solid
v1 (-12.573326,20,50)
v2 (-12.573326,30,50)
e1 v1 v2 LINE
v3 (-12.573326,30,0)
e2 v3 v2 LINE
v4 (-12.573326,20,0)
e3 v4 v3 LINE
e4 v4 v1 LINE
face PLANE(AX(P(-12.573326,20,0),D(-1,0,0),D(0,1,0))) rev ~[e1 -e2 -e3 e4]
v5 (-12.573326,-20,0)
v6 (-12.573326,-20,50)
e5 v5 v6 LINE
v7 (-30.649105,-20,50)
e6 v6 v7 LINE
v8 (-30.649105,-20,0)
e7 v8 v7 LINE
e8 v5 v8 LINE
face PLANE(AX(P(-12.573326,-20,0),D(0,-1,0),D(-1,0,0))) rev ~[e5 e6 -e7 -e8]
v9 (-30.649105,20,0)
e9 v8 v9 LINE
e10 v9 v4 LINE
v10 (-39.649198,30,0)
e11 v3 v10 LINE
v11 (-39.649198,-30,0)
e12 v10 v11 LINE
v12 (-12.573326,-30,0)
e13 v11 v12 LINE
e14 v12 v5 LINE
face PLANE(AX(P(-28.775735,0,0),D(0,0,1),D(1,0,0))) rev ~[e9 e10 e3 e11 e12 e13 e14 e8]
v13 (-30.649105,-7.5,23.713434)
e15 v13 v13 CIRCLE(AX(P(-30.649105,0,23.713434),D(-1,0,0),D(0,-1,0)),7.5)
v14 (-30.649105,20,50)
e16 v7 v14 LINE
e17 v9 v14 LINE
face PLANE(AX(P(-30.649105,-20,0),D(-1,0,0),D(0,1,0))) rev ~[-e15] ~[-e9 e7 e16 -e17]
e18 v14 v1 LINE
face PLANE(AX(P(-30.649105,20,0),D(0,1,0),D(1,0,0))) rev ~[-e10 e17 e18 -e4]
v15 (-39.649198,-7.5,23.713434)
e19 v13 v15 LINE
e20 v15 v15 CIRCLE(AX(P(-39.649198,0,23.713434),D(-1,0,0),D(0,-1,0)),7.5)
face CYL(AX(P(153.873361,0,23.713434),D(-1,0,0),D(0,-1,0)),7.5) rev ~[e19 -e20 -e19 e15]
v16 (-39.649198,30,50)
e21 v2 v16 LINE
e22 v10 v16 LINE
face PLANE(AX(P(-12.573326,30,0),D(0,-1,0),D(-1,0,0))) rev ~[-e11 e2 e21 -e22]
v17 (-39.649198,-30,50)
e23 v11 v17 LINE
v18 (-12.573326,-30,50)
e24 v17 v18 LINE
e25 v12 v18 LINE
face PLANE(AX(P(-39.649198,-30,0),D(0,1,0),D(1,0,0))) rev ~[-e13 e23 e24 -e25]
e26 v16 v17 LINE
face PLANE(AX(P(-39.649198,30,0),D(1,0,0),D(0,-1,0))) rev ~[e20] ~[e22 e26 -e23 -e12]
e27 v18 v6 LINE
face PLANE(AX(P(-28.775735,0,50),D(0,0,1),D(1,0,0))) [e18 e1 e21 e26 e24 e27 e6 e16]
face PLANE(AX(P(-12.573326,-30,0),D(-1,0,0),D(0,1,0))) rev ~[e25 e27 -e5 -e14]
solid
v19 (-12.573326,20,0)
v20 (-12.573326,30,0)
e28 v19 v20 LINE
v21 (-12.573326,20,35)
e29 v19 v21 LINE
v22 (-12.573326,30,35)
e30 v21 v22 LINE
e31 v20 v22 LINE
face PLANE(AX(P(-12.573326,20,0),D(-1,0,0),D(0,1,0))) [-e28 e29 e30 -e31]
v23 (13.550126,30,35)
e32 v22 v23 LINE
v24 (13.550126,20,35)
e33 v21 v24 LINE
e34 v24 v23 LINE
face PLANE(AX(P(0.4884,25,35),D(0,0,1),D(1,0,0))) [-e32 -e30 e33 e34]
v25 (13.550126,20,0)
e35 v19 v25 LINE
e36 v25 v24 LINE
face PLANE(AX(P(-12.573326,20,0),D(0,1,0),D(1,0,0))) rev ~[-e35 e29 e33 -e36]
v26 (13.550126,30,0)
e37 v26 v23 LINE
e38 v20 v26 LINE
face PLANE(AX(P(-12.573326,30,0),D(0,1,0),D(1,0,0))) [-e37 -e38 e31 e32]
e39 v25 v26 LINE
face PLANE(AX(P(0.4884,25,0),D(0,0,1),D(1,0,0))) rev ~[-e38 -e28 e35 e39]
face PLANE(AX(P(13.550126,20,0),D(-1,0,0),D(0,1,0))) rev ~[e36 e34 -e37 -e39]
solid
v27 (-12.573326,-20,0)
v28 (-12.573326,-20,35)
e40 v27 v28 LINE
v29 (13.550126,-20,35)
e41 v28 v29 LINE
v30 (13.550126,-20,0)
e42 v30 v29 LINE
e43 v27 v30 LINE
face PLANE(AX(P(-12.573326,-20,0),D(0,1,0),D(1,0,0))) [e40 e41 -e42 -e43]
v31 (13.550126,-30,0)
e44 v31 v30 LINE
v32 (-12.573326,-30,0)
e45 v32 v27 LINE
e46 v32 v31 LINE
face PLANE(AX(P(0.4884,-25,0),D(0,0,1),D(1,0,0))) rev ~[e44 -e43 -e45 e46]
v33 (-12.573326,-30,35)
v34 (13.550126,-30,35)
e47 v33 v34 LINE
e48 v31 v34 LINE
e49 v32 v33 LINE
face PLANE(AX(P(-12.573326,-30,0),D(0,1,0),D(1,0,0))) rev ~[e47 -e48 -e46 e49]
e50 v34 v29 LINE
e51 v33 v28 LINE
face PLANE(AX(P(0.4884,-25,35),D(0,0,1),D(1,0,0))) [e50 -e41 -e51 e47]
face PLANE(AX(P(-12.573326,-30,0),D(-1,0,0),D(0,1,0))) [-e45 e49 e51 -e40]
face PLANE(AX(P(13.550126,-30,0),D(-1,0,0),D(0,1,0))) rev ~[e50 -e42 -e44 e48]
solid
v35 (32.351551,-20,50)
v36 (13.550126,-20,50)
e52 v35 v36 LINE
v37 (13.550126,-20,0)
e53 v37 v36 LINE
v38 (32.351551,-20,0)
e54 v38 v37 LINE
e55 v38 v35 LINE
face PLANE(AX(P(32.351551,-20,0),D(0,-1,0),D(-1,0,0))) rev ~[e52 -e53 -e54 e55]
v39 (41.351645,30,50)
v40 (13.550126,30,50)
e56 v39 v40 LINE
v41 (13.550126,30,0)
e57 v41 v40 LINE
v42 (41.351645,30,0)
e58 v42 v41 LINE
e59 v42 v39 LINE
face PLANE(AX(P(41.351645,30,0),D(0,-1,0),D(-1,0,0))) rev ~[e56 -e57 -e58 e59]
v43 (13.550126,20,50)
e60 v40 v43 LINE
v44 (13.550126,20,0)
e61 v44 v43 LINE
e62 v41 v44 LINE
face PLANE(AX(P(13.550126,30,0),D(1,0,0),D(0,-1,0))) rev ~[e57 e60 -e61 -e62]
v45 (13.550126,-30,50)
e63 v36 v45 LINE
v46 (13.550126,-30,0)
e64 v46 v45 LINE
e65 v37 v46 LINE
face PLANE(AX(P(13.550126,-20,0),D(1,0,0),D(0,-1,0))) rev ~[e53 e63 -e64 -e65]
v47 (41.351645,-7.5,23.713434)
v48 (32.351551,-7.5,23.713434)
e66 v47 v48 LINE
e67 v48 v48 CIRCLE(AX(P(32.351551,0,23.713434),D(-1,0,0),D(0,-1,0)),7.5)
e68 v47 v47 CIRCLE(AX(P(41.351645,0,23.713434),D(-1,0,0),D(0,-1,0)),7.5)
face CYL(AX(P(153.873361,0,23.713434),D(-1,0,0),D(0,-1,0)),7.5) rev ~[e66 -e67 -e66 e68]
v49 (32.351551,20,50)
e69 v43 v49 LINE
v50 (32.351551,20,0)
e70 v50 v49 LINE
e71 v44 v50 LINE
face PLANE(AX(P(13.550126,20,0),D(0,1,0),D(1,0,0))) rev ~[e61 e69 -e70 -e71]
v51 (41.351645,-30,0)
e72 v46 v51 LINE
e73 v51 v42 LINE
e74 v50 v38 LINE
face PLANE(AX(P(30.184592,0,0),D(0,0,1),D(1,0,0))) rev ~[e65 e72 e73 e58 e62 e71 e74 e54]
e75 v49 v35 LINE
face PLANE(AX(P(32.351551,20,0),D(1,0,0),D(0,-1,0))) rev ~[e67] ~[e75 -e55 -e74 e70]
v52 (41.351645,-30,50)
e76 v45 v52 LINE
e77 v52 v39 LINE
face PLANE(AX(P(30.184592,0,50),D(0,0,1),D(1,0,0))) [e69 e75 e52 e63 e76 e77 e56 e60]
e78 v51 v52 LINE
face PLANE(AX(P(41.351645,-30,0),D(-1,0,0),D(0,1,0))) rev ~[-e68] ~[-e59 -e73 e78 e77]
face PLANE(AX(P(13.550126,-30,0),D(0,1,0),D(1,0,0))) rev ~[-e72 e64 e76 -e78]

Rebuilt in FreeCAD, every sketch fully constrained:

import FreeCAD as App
import Part
import Sketcher
from FreeCAD import Vector

doc = App.newDocument("Part")
params = doc.addObject("Spreadsheet::Sheet", "Params")
for row, (alias, value) in enumerate([
    ("sketch1_height", "60 mm"),
    ("sketch1_height2", "10 mm"),
    ("pad1_length", "50 mm"),
    ("sketch2_diameter", "15 mm"),
    ("hole_diameter", "15 mm"),
    ("sketch3_height", "10 mm"),
    ("pad2_length", "35 mm"),
], start=1):
    params.set(f"A{row}", alias)
    params.set(f"B{row}", "=" + value)
    params.setAlias(f"B{row}", alias)

body = doc.addObject("PartDesign::Body", "Body")
body.AllowCompound = True

sketch1 = body.newObject("Sketcher::SketchObject", "Sketch")
sketch1.AttachmentSupport = (doc.getObject("XY_Plane"), [""])
sketch1.MapMode = "FlatFace"
sketch1.addGeometry([
    Part.LineSegment(Vector(-12.573326, 30, 0), Vector(-39.649198, 30, 0)),
    Part.LineSegment(Vector(-39.649198, 30, 0), Vector(-39.649198, -30, 0)),
    Part.LineSegment(Vector(-39.649198, -30, 0), Vector(-12.573326, -30, 0)),
    Part.LineSegment(Vector(-12.573326, -30, 0), Vector(-12.573326, -20, 0)),
    Part.LineSegment(Vector(-12.573326, -20, 0), Vector(-30.649105, -20, 0)),
    Part.LineSegment(Vector(-30.649105, -20, 0), Vector(-30.649105, 20, 0)),
    Part.LineSegment(Vector(-30.649105, 20, 0), Vector(-12.573326, 20, 0)),
    Part.LineSegment(Vector(-12.573326, 20, 0), Vector(-12.573326, 30, 0)),
    Part.LineSegment(Vector(41.351645, 30, 0), Vector(13.550126, 30, 0)),
    Part.LineSegment(Vector(13.550126, 30, 0), Vector(13.550126, 20, 0)),
    Part.LineSegment(Vector(13.550126, 20, 0), Vector(32.351551, 20, 0)),
    Part.LineSegment(Vector(32.351551, 20, 0), Vector(32.351551, -20, 0)),
    Part.LineSegment(Vector(32.351551, -20, 0), Vector(13.550126, -20, 0)),
    Part.LineSegment(Vector(13.550126, -20, 0), Vector(13.550126, -30, 0)),
    Part.LineSegment(Vector(13.550126, -30, 0), Vector(41.351645, -30, 0)),
    Part.LineSegment(Vector(41.351645, -30, 0), Vector(41.351645, 30, 0)),
], False)
sketch1.addConstraint([
    Sketcher.Constraint("Coincident", 0, 2, 1, 1),
    Sketcher.Constraint("Coincident", 1, 2, 2, 1),
    Sketcher.Constraint("Coincident", 2, 2, 3, 1),
    Sketcher.Constraint("Coincident", 3, 2, 4, 1),
    Sketcher.Constraint("Coincident", 4, 2, 5, 1),
    Sketcher.Constraint("Coincident", 5, 2, 6, 1),
    Sketcher.Constraint("Coincident", 6, 2, 7, 1),
    Sketcher.Constraint("Coincident", 7, 2, 0, 1),
    Sketcher.Constraint("Coincident", 8, 2, 9, 1),
    Sketcher.Constraint("Coincident", 9, 2, 10, 1),
    Sketcher.Constraint("Coincident", 10, 2, 11, 1),
    Sketcher.Constraint("Coincident", 11, 2, 12, 1),
    Sketcher.Constraint("Coincident", 12, 2, 13, 1),
    Sketcher.Constraint("Coincident", 13, 2, 14, 1),
    Sketcher.Constraint("Coincident", 14, 2, 15, 1),
    Sketcher.Constraint("Coincident", 15, 2, 8, 1),
    Sketcher.Constraint("Horizontal", 0),
    Sketcher.Constraint("Vertical", 1),
    Sketcher.Constraint("Horizontal", 2),
    Sketcher.Constraint("Vertical", 3),
    Sketcher.Constraint("Horizontal", 4),
    Sketcher.Constraint("Vertical", 5),
    Sketcher.Constraint("Horizontal", 6),
    Sketcher.Constraint("Vertical", 7),
    Sketcher.Constraint("Horizontal", 8),
    Sketcher.Constraint("Vertical", 9),
    Sketcher.Constraint("Horizontal", 10),
    Sketcher.Constraint("Vertical", 11),
    Sketcher.Constraint("Horizontal", 12),
    Sketcher.Constraint("Vertical", 13),
    Sketcher.Constraint("Horizontal", 14),
    Sketcher.Constraint("Vertical", 15),
    Sketcher.Constraint("Symmetric", 3, 2, 6, 2, -1),
    Sketcher.Constraint("Symmetric", 9, 2, 12, 2, -1),
    Sketcher.Constraint("Horizontal", 7, 2, 8, 2),
    Sketcher.Constraint("Horizontal", 6, 2, 9, 2),
    Sketcher.Constraint("Horizontal", 2, 2, 13, 2),
    Sketcher.Constraint("Equal", 3, 7),
    Sketcher.Constraint("DistanceY", 1, 2, 1, 1, 60.0),
    Sketcher.Constraint("DistanceY", 3, 1, 3, 2, 10.0),
    Sketcher.Constraint("DistanceX", 0, 2, 0, 1, 27.075872),
    Sketcher.Constraint("DistanceX", 4, 2, 4, 1, 18.075779),
    Sketcher.Constraint("DistanceX", 8, 2, 8, 1, 27.801519),
    Sketcher.Constraint("DistanceX", 10, 1, 10, 2, 18.801425),
    Sketcher.Constraint("DistanceX", -1, 1, 10, 2, 32.351551),
    Sketcher.Constraint("DistanceX", 5, 2, 8, 2, 44.199231),
])
sketch1.setExpression("Constraints[38]", "Params.sketch1_height")
sketch1.setExpression("Constraints[39]", "Params.sketch1_height2")
pad1 = body.newObject("PartDesign::Pad", "Pad")
pad1.Profile = sketch1
pad1.setExpression("Length", "Params.pad1_length")

sketch2 = body.newObject("Sketcher::SketchObject", "Sketch001")
sketch2.AttachmentSupport = (doc.getObject("YZ_Plane"), [""])
sketch2.MapMode = "FlatFace"
sketch2.AttachmentOffset = App.Placement(Vector(0, 0, 41.351645), App.Rotation())
sketch2.addGeometry(Part.Circle(Vector(0, 23.713434, 0), Vector(0, 0, 1), 7.5), False)
sketch2.addConstraint([
    Sketcher.Constraint("PointOnObject", 0, 3, -2),
    Sketcher.Constraint("Diameter", 0, 15.0),
    Sketcher.Constraint("DistanceY", -1, 1, 0, 3, 23.713434),
])
sketch2.setExpression("Constraints[1]", "Params.sketch2_diameter")
doc.recompute()
hole = body.newObject("PartDesign::Hole", "Hole")
hole.Profile = sketch2
hole.ThreadType = "None"
hole.setExpression("Diameter", "Params.hole_diameter")
hole.DepthType = "ThroughAll"
body2 = doc.addObject("PartDesign::Body", "Body001")
body2.AllowCompound = True

sketch3 = body2.newObject("Sketcher::SketchObject", "Sketch002")
sketch3.AttachmentSupport = (doc.getObject("XY_Plane001"), [""])
sketch3.MapMode = "FlatFace"
sketch3.addGeometry([
    Part.LineSegment(Vector(-12.573326, -20, 0), Vector(-12.573326, -30, 0)),
    Part.LineSegment(Vector(-12.573326, -30, 0), Vector(13.550126, -30, 0)),
    Part.LineSegment(Vector(13.550126, -30, 0), Vector(13.550126, -20, 0)),
    Part.LineSegment(Vector(13.550126, -20, 0), Vector(-12.573326, -20, 0)),
    Part.LineSegment(Vector(-12.573326, 30, 0), Vector(-12.573326, 20, 0)),
    Part.LineSegment(Vector(-12.573326, 20, 0), Vector(13.550126, 20, 0)),
    Part.LineSegment(Vector(13.550126, 20, 0), Vector(13.550126, 30, 0)),
    Part.LineSegment(Vector(13.550126, 30, 0), Vector(-12.573326, 30, 0)),
], False)
sketch3.addConstraint([
    Sketcher.Constraint("Coincident", 0, 2, 1, 1),
    Sketcher.Constraint("Coincident", 1, 2, 2, 1),
    Sketcher.Constraint("Coincident", 2, 2, 3, 1),
    Sketcher.Constraint("Coincident", 3, 2, 0, 1),
    Sketcher.Constraint("Coincident", 4, 2, 5, 1),
    Sketcher.Constraint("Coincident", 5, 2, 6, 1),
    Sketcher.Constraint("Coincident", 6, 2, 7, 1),
    Sketcher.Constraint("Coincident", 7, 2, 4, 1),
    Sketcher.Constraint("Vertical", 0),
    Sketcher.Constraint("Horizontal", 1),
    Sketcher.Constraint("Vertical", 2),
    Sketcher.Constraint("Horizontal", 3),
    Sketcher.Constraint("Vertical", 4),
    Sketcher.Constraint("Horizontal", 5),
    Sketcher.Constraint("Vertical", 6),
    Sketcher.Constraint("Horizontal", 7),
    Sketcher.Constraint("Symmetric", 3, 2, 4, 2, -1),
    Sketcher.Constraint("Symmetric", 1, 2, 6, 2, -1),
    Sketcher.Constraint("DistanceY", 0, 2, 0, 1, 10.0),
    Sketcher.Constraint("DistanceY", 0, 2, -1, 1, 30.0),
    Sketcher.Constraint("DistanceX", 1, 1, 1, 2, 26.123452),
    Sketcher.Constraint("DistanceX", 0, 2, -1, 1, 12.573326),
])
sketch3.setExpression("Constraints[18]", "Params.sketch3_height")
pad2 = body2.newObject("PartDesign::Pad", "Pad001")
pad2.Profile = sketch3
pad2.setExpression("Length", "Params.pad2_length")

doc.recompute()
